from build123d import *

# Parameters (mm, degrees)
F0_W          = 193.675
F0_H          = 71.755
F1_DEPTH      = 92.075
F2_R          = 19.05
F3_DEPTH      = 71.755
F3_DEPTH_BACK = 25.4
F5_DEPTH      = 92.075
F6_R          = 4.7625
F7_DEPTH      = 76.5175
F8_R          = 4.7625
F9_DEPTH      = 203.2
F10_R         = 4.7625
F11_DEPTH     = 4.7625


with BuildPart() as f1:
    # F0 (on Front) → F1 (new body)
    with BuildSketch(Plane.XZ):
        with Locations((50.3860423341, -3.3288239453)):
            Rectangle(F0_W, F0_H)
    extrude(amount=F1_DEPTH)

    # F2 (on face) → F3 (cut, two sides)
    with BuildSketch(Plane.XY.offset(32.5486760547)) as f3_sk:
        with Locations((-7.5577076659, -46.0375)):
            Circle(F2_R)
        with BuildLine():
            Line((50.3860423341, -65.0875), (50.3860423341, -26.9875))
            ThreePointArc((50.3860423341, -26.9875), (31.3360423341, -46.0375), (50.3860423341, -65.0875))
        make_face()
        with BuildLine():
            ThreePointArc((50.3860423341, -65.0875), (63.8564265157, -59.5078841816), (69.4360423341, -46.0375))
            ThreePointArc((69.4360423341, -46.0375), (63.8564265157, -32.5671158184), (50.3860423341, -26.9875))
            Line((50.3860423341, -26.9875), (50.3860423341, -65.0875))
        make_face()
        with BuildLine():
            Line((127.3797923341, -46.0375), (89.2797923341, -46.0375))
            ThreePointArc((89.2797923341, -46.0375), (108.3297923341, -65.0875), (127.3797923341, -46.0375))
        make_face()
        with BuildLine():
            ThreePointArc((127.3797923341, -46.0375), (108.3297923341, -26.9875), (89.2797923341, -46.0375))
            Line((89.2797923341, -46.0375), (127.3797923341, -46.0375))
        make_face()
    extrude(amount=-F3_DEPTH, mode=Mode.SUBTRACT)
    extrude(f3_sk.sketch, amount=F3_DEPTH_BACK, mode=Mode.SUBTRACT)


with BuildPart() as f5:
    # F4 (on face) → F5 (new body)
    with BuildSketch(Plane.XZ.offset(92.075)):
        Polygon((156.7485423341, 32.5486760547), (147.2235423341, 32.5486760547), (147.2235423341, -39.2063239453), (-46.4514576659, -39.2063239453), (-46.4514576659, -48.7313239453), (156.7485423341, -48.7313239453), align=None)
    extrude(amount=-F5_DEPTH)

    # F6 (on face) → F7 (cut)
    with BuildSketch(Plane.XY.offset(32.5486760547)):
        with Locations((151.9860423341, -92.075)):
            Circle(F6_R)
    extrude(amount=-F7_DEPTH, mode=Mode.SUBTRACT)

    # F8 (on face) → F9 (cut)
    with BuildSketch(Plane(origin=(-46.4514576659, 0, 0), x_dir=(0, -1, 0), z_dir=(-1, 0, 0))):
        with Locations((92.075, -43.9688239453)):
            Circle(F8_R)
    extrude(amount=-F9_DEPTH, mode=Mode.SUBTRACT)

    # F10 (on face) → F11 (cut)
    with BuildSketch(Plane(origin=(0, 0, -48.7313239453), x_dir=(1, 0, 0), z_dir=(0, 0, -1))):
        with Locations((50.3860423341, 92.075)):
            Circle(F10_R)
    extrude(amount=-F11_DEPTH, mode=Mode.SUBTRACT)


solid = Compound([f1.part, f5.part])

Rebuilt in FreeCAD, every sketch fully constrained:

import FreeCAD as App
import Part
import Sketcher
from FreeCAD import Vector
Q = App.Units.Quantity


def add_polygon(sketch, points):
    """Adds a closed chain of lines whose ends are joined by coincident constraints."""
    first, n = sketch.GeometryCount, len(points)
    for a, b in zip(points, points[1:] + points[:1]):
        sketch.addGeometry(Part.LineSegment(App.Vector(*a, 0), App.Vector(*b, 0)), False)
    for i in range(n):
        sketch.addConstraint(Sketcher.Constraint("Coincident", first + i, 2, first + (i + 1) % n, 1))

doc = App.newDocument("Part")
params = doc.addObject("Spreadsheet::Sheet", "Params")
for row, (alias, value) in enumerate([
    ("sketch1_width", "7.625 in"),
    ("sketch1_height", "2.825 in"),
    ("pad1_length", "3.625 in"),
    ("sketch2_diameter", "1.5 in"),
    ("sketch3_width", "8 in"),
    ("sketch3_height", "3.2 in"),
    ("sketch3_width2", "0.375 in"),
    ("pad2_length", "3.625 in"),
    ("sketch4_diameter", "0.375 in"),
    ("pocket2_length", "3.0125 in"),
    ("sketch5_diameter", "0.375 in"),
    ("pocket3_length", "8 in"),
    ("sketch6_diameter", "0.375 in"),
    ("pocket4_length", "0.1875 in"),
], start=1):
    params.set(f"A{row}", alias)
    params.set(f"B{row}", "=" + value)
    params.setAlias(f"B{row}", alias)

body = doc.addObject("PartDesign::Body", "Body")

sketch1 = body.newObject("Sketcher::SketchObject", "Sketch")
sketch1.AttachmentSupport = (doc.getObject("XZ_Plane"), [""])
sketch1.MapMode = "FlatFace"
add_polygon(sketch1, [(-46, 33), (-46, -39), (147, -39), (147, 33)])
sketch1.addConstraint([
    Sketcher.Constraint("Vertical", 0),
    Sketcher.Constraint("Horizontal", 1),
    Sketcher.Constraint("Vertical", 2),
    Sketcher.Constraint("Horizontal", 3),
    Sketcher.Constraint("DistanceX", 1, 1, 1, 2, Q("7.625 in")),
    Sketcher.Constraint("DistanceY", 0, 2, 0, 1, Q("2.825 in")),
    Sketcher.Constraint("DistanceX", 0, 2, -1, 1, Q("46.451458 mm")),
    Sketcher.Constraint("DistanceY", 0, 2, -1, 1, Q("39.206324 mm")),
])
sketch1.setExpression("Constraints[8]", "Params.sketch1_width")
sketch1.setExpression("Constraints[9]", "Params.sketch1_height")
pad1 = body.newObject("PartDesign::Pad", "Pad")
pad1.Profile = sketch1
pad1.setExpression("Length", "Params.pad1_length")

sketch2 = body.newObject("Sketcher::SketchObject", "Sketch001")
sketch2.AttachmentSupport = (doc.getObject("XY_Plane"), [""])
sketch2.MapMode = "FlatFace"
sketch2.AttachmentOffset = App.Placement(Vector(0, 0, 32.548676), App.Rotation())
sketch2.addGeometry([
    Part.Circle(Vector(-8, -46, 0), Vector(0, 0, 1), 19),
    Part.Circle(Vector(50, -46, 0), Vector(0, 0, 1), 19),
    Part.Circle(Vector(108, -46, 0), Vector(0, 0, 1), 19),
], False)
sketch2.addConstraint([
    Sketcher.Constraint("Equal", 0, 1),
    Sketcher.Constraint("Equal", 1, 2),
    Sketcher.Constraint("Horizontal", 0, 3, 1, 3),
    Sketcher.Constraint("Horizontal", 1, 3, 2, 3),
    Sketcher.Constraint("Diameter", 0, Q("1.5 in")),
    Sketcher.Constraint("DistanceY", 0, 3, -1, 1, Q("1.8125 in")),
    Sketcher.Constraint("DistanceX", 0, 3, 1, 3, Q("2.28125 in")),
    Sketcher.Constraint("DistanceX", 1, 3, 2, 3, Q("2.28125 in")),
    Sketcher.Constraint("DistanceX", 0, 3, -1, 1, Q("7.557708 mm")),
])
sketch2.setExpression("Constraints[4]", "Params.sketch2_diameter")
pocket1 = body.newObject("PartDesign::Pocket", "Pocket")
pocket1.Profile = sketch2
pocket1.Type = "ThroughAll"
pocket1.Midplane = True
body2 = doc.addObject("PartDesign::Body", "Body001")

sketch3 = body2.newObject("Sketcher::SketchObject", "Sketch002")
sketch3.AttachmentSupport = (doc.getObject("XZ_Plane001"), [""])
sketch3.MapMode = "FlatFace"
sketch3.AttachmentOffset = App.Placement(Vector(0, 0, 3.625 * 25.4), App.Rotation())
add_polygon(sketch3, [(157, 33), (147, 33), (147, -39), (-46, -39), (-46, -49), (157, -49)])
sketch3.addConstraint([
    Sketcher.Constraint("Horizontal", 0),
    Sketcher.Constraint("Vertical", 1),
    Sketcher.Constraint("Horizontal", 2),
    Sketcher.Constraint("Vertical", 3),
    Sketcher.Constraint("Horizontal", 4),
    Sketcher.Constraint("Vertical", 5),
    Sketcher.Constraint("Equal", 0, 3),
    Sketcher.Constraint("DistanceX", 4, 1, 4, 2, Q("8 in")),
    Sketcher.Constraint("DistanceY", 5, 1, 5, 2, Q("3.2 in")),
    Sketcher.Constraint("DistanceX", 0, 2, 0, 1, Q("0.375 in")),
    Sketcher.Constraint("DistanceX", -1, 1, 0, 2, Q("147.223542 mm")),
    Sketcher.Constraint("DistanceY", -1, 1, 0, 2, Q("32.548676 mm")),
])
sketch3.setExpression("Constraints[13]", "Params.sketch3_width")
sketch3.setExpression("Constraints[14]", "Params.sketch3_height")
sketch3.setExpression("Constraints[15]", "Params.sketch3_width2")
pad2 = body2.newObject("PartDesign::Pad", "Pad001")
pad2.Profile = sketch3
pad2.setExpression("Length", "Params.pad2_length")
pad2.Reversed = True

sketch4 = body2.newObject("Sketcher::SketchObject", "Sketch003")
sketch4.AttachmentSupport = (doc.getObject("XY_Plane001"), [""])
sketch4.MapMode = "FlatFace"
sketch4.AttachmentOffset = App.Placement(Vector(0, 0, 32.548676), App.Rotation())
sketch4.addGeometry(Part.Circle(Vector(152, -92.1, 0), Vector(0, 0, 1), 4.8), False)
sketch4.addConstraint([
    Sketcher.Constraint("Diameter", 0, Q("0.375 in")),
    Sketcher.Constraint("DistanceY", 0, 3, -1, 1, Q("3.625 in")),
    Sketcher.Constraint("DistanceX", -1, 1, 0, 3, Q("151.986042 mm")),
])
sketch4.setExpression("Constraints[0]", "Params.sketch4_diameter")
pocket2 = body2.newObject("PartDesign::Pocket", "Pocket001")
pocket2.Profile = sketch4
pocket2.setExpression("Length", "Params.pocket2_length")

sketch5 = body2.newObject("Sketcher::SketchObject", "Sketch004")
sketch5.AttachmentSupport = (doc.getObject("YZ_Plane001"), [""])
sketch5.MapMode = "FlatFace"
sketch5.AttachmentOffset = App.Placement(Vector(0, 0, -46.451458), App.Rotation())
sketch5.addGeometry(Part.Circle(Vector(-92.1, -44, 0), Vector(0, 0, 1), 4.8), False)
sketch5.addConstraint([
    Sketcher.Constraint("Diameter", 0, Q("0.375 in")),
    Sketcher.Constraint("DistanceX", 0, 3, -1, 1, Q("3.625 in")),
    Sketcher.Constraint("DistanceY", 0, 3, -1, 1, Q("43.968824 mm")),
])
sketch5.setExpression("Constraints[0]", "Params.sketch5_diameter")
pocket3 = body2.newObject("PartDesign::Pocket", "Pocket002")
pocket3.Profile = sketch5
pocket3.setExpression("Length", "Params.pocket3_length")
pocket3.Reversed = True

sketch6 = body2.newObject("Sketcher::SketchObject", "Sketch005")
sketch6.AttachmentSupport = (doc.getObject("XY_Plane001"), [""])
sketch6.MapMode = "FlatFace"
sketch6.AttachmentOffset = App.Placement(Vector(0, 0, -48.731324), App.Rotation())
sketch6.addGeometry(Part.Circle(Vector(50.4, -92.1, 0), Vector(0, 0, 1), 4.8), False)
sketch6.addConstraint([
    Sketcher.Constraint("Diameter", 0, Q("0.375 in")),
    Sketcher.Constraint("DistanceY", 0, 3, -1, 1, Q("3.625 in")),
    Sketcher.Constraint("DistanceX", -1, 1, 0, 3, Q("50.386042 mm")),
])
sketch6.setExpression("Constraints[0]", "Params.sketch6_diameter")
pocket4 = body2.newObject("PartDesign::Pocket", "Pocket003")
pocket4.Profile = sketch6
pocket4.setExpression("Length", "Params.pocket4_length")
pocket4.Reversed = True

doc.recompute()
